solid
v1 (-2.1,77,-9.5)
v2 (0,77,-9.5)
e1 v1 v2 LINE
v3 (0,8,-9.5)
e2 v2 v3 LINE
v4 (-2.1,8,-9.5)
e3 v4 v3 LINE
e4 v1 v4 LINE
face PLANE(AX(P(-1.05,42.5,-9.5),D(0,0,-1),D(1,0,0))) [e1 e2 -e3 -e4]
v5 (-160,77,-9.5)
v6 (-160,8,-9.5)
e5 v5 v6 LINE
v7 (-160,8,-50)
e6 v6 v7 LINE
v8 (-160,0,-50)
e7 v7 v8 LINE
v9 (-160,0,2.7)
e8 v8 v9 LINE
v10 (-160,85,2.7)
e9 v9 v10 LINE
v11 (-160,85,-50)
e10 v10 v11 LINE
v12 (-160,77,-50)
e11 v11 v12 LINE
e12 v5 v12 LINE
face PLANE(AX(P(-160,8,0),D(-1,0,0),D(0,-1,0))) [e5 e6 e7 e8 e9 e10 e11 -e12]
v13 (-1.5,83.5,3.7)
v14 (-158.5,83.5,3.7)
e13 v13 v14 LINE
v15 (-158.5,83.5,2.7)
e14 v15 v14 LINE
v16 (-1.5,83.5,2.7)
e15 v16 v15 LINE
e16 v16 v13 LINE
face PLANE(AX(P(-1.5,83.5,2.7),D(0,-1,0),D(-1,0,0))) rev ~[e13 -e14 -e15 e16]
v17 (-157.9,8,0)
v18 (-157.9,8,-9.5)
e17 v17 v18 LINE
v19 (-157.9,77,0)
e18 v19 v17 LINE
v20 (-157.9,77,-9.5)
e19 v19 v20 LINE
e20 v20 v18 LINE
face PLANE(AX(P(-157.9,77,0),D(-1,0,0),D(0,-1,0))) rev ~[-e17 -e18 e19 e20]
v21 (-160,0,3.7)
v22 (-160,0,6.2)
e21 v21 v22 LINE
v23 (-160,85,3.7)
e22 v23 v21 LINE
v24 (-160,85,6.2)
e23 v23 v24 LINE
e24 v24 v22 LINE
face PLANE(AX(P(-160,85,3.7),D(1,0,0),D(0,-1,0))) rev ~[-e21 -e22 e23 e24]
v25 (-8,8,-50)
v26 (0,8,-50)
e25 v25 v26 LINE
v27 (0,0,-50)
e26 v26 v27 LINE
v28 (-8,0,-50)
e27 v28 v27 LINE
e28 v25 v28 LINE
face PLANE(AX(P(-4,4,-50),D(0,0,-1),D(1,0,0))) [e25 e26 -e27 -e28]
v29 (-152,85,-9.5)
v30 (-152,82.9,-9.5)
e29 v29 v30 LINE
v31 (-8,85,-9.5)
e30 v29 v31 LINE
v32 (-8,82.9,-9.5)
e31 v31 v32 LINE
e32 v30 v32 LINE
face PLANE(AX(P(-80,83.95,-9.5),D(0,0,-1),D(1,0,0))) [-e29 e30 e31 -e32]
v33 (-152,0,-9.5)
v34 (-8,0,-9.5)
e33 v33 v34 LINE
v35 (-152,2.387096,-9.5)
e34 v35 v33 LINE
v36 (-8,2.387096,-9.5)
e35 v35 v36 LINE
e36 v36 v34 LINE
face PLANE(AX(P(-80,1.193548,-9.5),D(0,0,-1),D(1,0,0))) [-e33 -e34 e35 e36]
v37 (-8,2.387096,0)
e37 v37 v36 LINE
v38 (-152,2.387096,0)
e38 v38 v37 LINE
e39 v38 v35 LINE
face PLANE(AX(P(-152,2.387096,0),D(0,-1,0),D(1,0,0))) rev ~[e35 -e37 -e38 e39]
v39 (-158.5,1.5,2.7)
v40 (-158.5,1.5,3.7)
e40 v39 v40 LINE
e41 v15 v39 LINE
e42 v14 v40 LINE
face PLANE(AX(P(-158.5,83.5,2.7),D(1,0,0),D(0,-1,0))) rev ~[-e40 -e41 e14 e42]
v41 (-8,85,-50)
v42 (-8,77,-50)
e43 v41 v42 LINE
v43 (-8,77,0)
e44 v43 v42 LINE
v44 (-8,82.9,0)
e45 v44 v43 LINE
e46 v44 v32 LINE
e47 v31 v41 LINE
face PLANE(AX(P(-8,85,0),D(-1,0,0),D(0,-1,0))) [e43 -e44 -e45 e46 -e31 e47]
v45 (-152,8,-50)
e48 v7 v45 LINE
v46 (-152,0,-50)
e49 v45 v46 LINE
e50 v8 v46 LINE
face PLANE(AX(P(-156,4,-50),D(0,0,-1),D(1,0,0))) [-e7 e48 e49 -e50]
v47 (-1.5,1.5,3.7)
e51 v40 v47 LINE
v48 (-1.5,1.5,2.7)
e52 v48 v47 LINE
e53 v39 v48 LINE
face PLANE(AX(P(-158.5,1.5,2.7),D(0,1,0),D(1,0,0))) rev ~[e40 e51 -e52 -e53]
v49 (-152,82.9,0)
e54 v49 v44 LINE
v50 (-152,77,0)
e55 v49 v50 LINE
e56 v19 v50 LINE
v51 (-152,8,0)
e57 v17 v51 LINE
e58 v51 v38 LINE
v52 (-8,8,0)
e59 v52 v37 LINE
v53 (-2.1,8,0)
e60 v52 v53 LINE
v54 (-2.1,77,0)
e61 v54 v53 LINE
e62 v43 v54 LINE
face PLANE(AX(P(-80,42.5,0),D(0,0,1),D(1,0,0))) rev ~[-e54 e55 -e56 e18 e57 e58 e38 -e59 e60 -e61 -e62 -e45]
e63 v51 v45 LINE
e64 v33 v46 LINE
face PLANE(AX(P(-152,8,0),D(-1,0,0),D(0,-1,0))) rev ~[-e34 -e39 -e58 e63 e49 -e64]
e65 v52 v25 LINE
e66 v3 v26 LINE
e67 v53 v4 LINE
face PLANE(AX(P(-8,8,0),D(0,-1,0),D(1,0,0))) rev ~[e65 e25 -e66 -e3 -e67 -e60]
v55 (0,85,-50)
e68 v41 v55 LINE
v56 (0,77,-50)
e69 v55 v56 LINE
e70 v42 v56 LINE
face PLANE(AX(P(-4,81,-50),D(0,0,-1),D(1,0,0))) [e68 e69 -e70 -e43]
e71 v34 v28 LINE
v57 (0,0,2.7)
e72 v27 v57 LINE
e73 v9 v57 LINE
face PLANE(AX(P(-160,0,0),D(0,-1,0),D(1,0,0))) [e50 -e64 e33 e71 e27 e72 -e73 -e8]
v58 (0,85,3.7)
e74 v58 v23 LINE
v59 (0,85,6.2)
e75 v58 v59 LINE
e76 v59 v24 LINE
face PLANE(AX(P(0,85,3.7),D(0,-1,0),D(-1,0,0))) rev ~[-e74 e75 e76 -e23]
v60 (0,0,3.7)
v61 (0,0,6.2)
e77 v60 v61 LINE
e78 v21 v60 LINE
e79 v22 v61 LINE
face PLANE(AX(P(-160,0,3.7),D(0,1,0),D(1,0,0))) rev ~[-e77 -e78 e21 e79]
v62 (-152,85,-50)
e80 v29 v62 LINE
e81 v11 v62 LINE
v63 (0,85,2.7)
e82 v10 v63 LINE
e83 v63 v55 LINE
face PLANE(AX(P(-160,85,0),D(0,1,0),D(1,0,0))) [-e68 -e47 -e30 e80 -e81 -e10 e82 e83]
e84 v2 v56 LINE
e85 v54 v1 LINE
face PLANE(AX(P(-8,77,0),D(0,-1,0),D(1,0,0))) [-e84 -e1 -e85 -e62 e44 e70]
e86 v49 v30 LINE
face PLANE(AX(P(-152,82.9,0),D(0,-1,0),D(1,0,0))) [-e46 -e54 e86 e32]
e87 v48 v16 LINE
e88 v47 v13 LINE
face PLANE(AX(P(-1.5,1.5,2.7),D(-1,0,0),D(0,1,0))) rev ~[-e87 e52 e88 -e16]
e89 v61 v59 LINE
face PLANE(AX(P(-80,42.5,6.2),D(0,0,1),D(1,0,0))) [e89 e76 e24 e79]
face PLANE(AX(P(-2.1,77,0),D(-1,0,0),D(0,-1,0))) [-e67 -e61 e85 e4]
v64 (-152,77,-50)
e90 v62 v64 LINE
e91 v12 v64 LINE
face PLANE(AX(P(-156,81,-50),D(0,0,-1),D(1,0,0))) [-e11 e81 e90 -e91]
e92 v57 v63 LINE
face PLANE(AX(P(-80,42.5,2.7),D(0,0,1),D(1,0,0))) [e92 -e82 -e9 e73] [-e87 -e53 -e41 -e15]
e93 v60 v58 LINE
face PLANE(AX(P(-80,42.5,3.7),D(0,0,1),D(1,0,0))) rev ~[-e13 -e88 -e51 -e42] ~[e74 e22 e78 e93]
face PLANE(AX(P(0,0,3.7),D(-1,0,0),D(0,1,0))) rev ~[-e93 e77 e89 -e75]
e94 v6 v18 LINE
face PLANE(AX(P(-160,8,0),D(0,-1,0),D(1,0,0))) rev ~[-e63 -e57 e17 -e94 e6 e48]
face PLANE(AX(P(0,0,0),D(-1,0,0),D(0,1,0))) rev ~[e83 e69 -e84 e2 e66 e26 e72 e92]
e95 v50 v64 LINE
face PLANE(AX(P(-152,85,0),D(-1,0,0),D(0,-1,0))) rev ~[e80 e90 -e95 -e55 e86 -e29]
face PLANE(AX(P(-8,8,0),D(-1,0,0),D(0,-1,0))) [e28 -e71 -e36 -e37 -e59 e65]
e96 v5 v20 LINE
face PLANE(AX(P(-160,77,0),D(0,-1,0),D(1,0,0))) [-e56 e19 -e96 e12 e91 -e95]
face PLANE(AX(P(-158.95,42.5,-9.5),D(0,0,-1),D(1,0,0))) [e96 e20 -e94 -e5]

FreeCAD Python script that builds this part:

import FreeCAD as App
import Part
import Sketcher

doc = App.newDocument("Part")
body = doc.addObject("PartDesign::Body", "Body")

# Sketch on XY plane
sketch1 = doc.addObject("Sketcher::SketchObject", "Sketch")
body.addObject(sketch1)
sketch1.AttachmentSupport = (doc.XY_Plane, [""])
sketch1.MapMode = "FlatFace"
sketch1.addGeometry(Part.LineSegment(App.Vector(-160, 85, 0), App.Vector(-160, 0, 0)), False)
sketch1.addGeometry(Part.LineSegment(App.Vector(-160, 0, 0), App.Vector(0, 0, 0)), False)
sketch1.addGeometry(Part.LineSegment(App.Vector(0, 0, 0), App.Vector(0, 85, 0)), False)
sketch1.addGeometry(Part.LineSegment(App.Vector(0, 85, 0), App.Vector(-160, 85, 0)), False)
sketch1.addConstraint(Sketcher.Constraint("Coincident", 0, 2, 1, 1))
sketch1.addConstraint(Sketcher.Constraint("Coincident", 1, 2, 2, 1))
sketch1.addConstraint(Sketcher.Constraint("Coincident", 2, 2, 3, 1))
sketch1.addConstraint(Sketcher.Constraint("Coincident", 3, 2, 0, 1))
sketch1.addConstraint(Sketcher.Constraint("Vertical", 0))
sketch1.addConstraint(Sketcher.Constraint("Horizontal", 1))
sketch1.addConstraint(Sketcher.Constraint("Vertical", 2))
sketch1.addConstraint(Sketcher.Constraint("Horizontal", 3))
sketch1.addConstraint(Sketcher.Constraint("Coincident", 1, 2, -1, 1))
sketch1.addConstraint(Sketcher.Constraint("DistanceX", 1, 1, 1, 2, 160.0))
sketch1.addConstraint(Sketcher.Constraint("DistanceY", 0, 2, 0, 1, 85.0))
pad1 = doc.addObject("PartDesign::Pad", "Pad")
body.addObject(pad1)
pad1.Profile = sketch1
pad1.Length = 2.7

# Sketch on XY plane
sketch2 = doc.addObject("Sketcher::SketchObject", "Sketch001")
body.addObject(sketch2)
sketch2.AttachmentSupport = (doc.XY_Plane, [""])
sketch2.MapMode = "FlatFace"
sketch2.AttachmentOffset = App.Placement(App.Vector(0, 0, 2.7), App.Rotation())
sketch2.addGeometry(Part.LineSegment(App.Vector(-2, 84, 0), App.Vector(-158, 84, 0)), False)
sketch2.addGeometry(Part.LineSegment(App.Vector(-158, 84, 0), App.Vector(-158, 2, 0)), False)
sketch2.addGeometry(Part.LineSegment(App.Vector(-158, 2, 0), App.Vector(-2, 2, 0)), False)
sketch2.addGeometry(Part.LineSegment(App.Vector(-2, 2, 0), App.Vector(-2, 84, 0)), False)
sketch2.addConstraint(Sketcher.Constraint("Coincident", 0, 2, 1, 1))
sketch2.addConstraint(Sketcher.Constraint("Coincident", 1, 2, 2, 1))
sketch2.addConstraint(Sketcher.Constraint("Coincident", 2, 2, 3, 1))
sketch2.addConstraint(Sketcher.Constraint("Coincident", 3, 2, 0, 1))
sketch2.addConstraint(Sketcher.Constraint("Horizontal", 0))
sketch2.addConstraint(Sketcher.Constraint("Vertical", 1))
sketch2.addConstraint(Sketcher.Constraint("Horizontal", 2))
sketch2.addConstraint(Sketcher.Constraint("Vertical", 3))
sketch2.addConstraint(Sketcher.Constraint("DistanceX", 0, 2, 0, 1, 157.0))
sketch2.addConstraint(Sketcher.Constraint("DistanceY", 1, 2, 1, 1, 82.0))
sketch2.addConstraint(Sketcher.Constraint("DistanceX", 0, 2, -1, 1, 158.5))
sketch2.addConstraint(Sketcher.Constraint("DistanceY", -1, 1, 0, 2, 83.5))
pad2 = doc.addObject("PartDesign::Pad", "Pad001")
body.addObject(pad2)
pad2.Profile = sketch2
pad2.Length = 1

# Sketch on XY plane
sketch3 = doc.addObject("Sketcher::SketchObject", "Sketch002")
body.addObject(sketch3)
sketch3.AttachmentSupport = (doc.XY_Plane, [""])
sketch3.MapMode = "FlatFace"
sketch3.addGeometry(Part.LineSegment(App.Vector(-160, 0, 0), App.Vector(-160, 8, 0)), False)
sketch3.addGeometry(Part.LineSegment(App.Vector(-160, 8, 0), App.Vector(-152, 8, 0)), False)
sketch3.addGeometry(Part.LineSegment(App.Vector(-152, 8, 0), App.Vector(-152, 0, 0)), False)
sketch3.addGeometry(Part.LineSegment(App.Vector(-152, 0, 0), App.Vector(-160, 0, 0)), False)
sketch3.addConstraint(Sketcher.Constraint("Coincident", 0, 2, 1, 1))
sketch3.addConstraint(Sketcher.Constraint("Coincident", 1, 2, 2, 1))
sketch3.addConstraint(Sketcher.Constraint("Coincident", 2, 2, 3, 1))
sketch3.addConstraint(Sketcher.Constraint("Coincident", 3, 2, 0, 1))
sketch3.addConstraint(Sketcher.Constraint("Vertical", 0))
sketch3.addConstraint(Sketcher.Constraint("Horizontal", 1))
sketch3.addConstraint(Sketcher.Constraint("Vertical", 2))
sketch3.addConstraint(Sketcher.Constraint("Horizontal", 3))
sketch3.addConstraint(Sketcher.Constraint("PointOnObject", 2, 2, -1))
sketch3.addConstraint(Sketcher.Constraint("Equal", 3, 0))
sketch3.addConstraint(Sketcher.Constraint("DistanceX", 1, 1, 1, 2, 8.0))
sketch3.addConstraint(Sketcher.Constraint("DistanceX", 0, 2, -1, 1, 160.0))
pad3 = doc.addObject("PartDesign::Pad", "Pad002")
body.addObject(pad3)
pad3.Profile = sketch3
pad3.Length = 50
pad3.Reversed = True

# Sketch on XY plane
sketch4 = doc.addObject("Sketcher::SketchObject", "Sketch003")
body.addObject(sketch4)
sketch4.AttachmentSupport = (doc.XY_Plane, [""])
sketch4.MapMode = "FlatFace"
sketch4.addGeometry(Part.LineSegment(App.Vector(-160, 0, 0), App.Vector(-160, 8, 0)), False)
sketch4.addGeometry(Part.LineSegment(App.Vector(-160, 8, 0), App.Vector(-152, 8, 0)), False)
sketch4.addGeometry(Part.LineSegment(App.Vector(-152, 8, 0), App.Vector(-152, 0, 0)), False)
sketch4.addGeometry(Part.LineSegment(App.Vector(-152, 0, 0), App.Vector(-160, 0, 0)), False)
sketch4.addGeometry(Part.LineSegment(App.Vector(-160, 77, 0), App.Vector(-160, 85, 0)), False)
sketch4.addGeometry(Part.LineSegment(App.Vector(-160, 85, 0), App.Vector(-152, 85, 0)), False)
sketch4.addGeometry(Part.LineSegment(App.Vector(-152, 85, 0), App.Vector(-152, 77, 0)), False)
sketch4.addGeometry(Part.LineSegment(App.Vector(-152, 77, 0), App.Vector(-160, 77, 0)), False)
sketch4.addGeometry(Part.LineSegment(App.Vector(-8, 77, 0), App.Vector(-8, 85, 0)), False)
sketch4.addGeometry(Part.LineSegment(App.Vector(-8, 85, 0), App.Vector(0, 85, 0)), False)
sketch4.addGeometry(Part.LineSegment(App.Vector(0, 85, 0), App.Vector(0, 77, 0)), False)
sketch4.addGeometry(Part.LineSegment(App.Vector(0, 77, 0), App.Vector(-8, 77, 0)), False)
sketch4.addGeometry(Part.LineSegment(App.Vector(-8, 0, 0), App.Vector(-8, 8, 0)), False)
sketch4.addGeometry(Part.LineSegment(App.Vector(-8, 8, 0), App.Vector(0, 8, 0)), False)
sketch4.addGeometry(Part.LineSegment(App.Vector(0, 8, 0), App.Vector(0, 0, 0)), False)
sketch4.addGeometry(Part.LineSegment(App.Vector(0, 0, 0), App.Vector(-8, 0, 0)), False)
sketch4.addConstraint(Sketcher.Constraint("Coincident", 0, 2, 1, 1))
sketch4.addConstraint(Sketcher.Constraint("Coincident", 1, 2, 2, 1))
sketch4.addConstraint(Sketcher.Constraint("Coincident", 2, 2, 3, 1))
sketch4.addConstraint(Sketcher.Constraint("Coincident", 3, 2, 0, 1))
sketch4.addConstraint(Sketcher.Constraint("Coincident", 4, 2, 5, 1))
sketch4.addConstraint(Sketcher.Constraint("Coincident", 5, 2, 6, 1))
sketch4.addConstraint(Sketcher.Constraint("Coincident", 6, 2, 7, 1))
sketch4.addConstraint(Sketcher.Constraint("Coincident", 7, 2, 4, 1))
sketch4.addConstraint(Sketcher.Constraint("Coincident", 8, 2, 9, 1))
sketch4.addConstraint(Sketcher.Constraint("Coincident", 9, 2, 10, 1))
sketch4.addConstraint(Sketcher.Constraint("Coincident", 10, 2, 11, 1))
sketch4.addConstraint(Sketcher.Constraint("Coincident", 11, 2, 8, 1))
sketch4.addConstraint(Sketcher.Constraint("Coincident", 12, 2, 13, 1))
sketch4.addConstraint(Sketcher.Constraint("Coincident", 13, 2, 14, 1))
sketch4.addConstraint(Sketcher.Constraint("Coincident", 14, 2, 15, 1))
sketch4.addConstraint(Sketcher.Constraint("Coincident", 15, 2, 12, 1))
sketch4.addConstraint(Sketcher.Constraint("Vertical", 0))
sketch4.addConstraint(Sketcher.Constraint("Horizontal", 1))
sketch4.addConstraint(Sketcher.Constraint("Vertical", 2))
sketch4.addConstraint(Sketcher.Constraint("Horizontal", 3))
sketch4.addConstraint(Sketcher.Constraint("Vertical", 4))
sketch4.addConstraint(Sketcher.Constraint("Horizontal", 5))
sketch4.addConstraint(Sketcher.Constraint("Vertical", 6))
sketch4.addConstraint(Sketcher.Constraint("Horizontal", 7))
sketch4.addConstraint(Sketcher.Constraint("Vertical", 8))
sketch4.addConstraint(Sketcher.Constraint("Horizontal", 9))
sketch4.addConstraint(Sketcher.Constraint("Vertical", 10))
sketch4.addConstraint(Sketcher.Constraint("Horizontal", 11))
sketch4.addConstraint(Sketcher.Constraint("Vertical", 12))
sketch4.addConstraint(Sketcher.Constraint("Horizontal", 13))
sketch4.addConstraint(Sketcher.Constraint("Vertical", 14))
sketch4.addConstraint(Sketcher.Constraint("Horizontal", 15))
sketch4.addConstraint(Sketcher.Constraint("Coincident", 14, 2, -1, 1))
sketch4.addConstraint(Sketcher.Constraint("PointOnObject", 2, 2, -1))
sketch4.addConstraint(Sketcher.Constraint("PointOnObject", 9, 2, -2))
sketch4.addConstraint(Sketcher.Constraint("Horizontal", 5, 2, 8, 2))
sketch4.addConstraint(Sketcher.Constraint("Horizontal", 7, 2, 10, 2))
sketch4.addConstraint(Sketcher.Constraint("Horizontal", 1, 2, 12, 2))
sketch4.addConstraint(Sketcher.Constraint("Vertical", 3, 2, 4, 2))
sketch4.addConstraint(Sketcher.Constraint("Vertical", 2, 2, 5, 2))
sketch4.addConstraint(Sketcher.Constraint("Vertical", 11, 2, 12, 2))
sketch4.addConstraint(Sketcher.Constraint("Equal", 7, 9))
sketch4.addConstraint(Sketcher.Constraint("Equal", 15, 0))
sketch4.addConstraint(Sketcher.Constraint("Equal", 2, 4))
sketch4.addConstraint(Sketcher.Constraint("DistanceX", 1, 1, 1, 2, 8.0))
sketch4.addConstraint(Sketcher.Constraint("DistanceX", 0, 2, -1, 1, 160.0))
sketch4.addConstraint(Sketcher.Constraint("DistanceY", -1, 1, 4, 2, 85.0))
pad4 = doc.addObject("PartDesign::Pad", "Pad003")
body.addObject(pad4)
pad4.Profile = sketch4
pad4.Length = 50
pad4.Reversed = True

# Sketch on XY plane
sketch5 = doc.addObject("Sketcher::SketchObject", "Sketch004")
body.addObject(sketch5)
sketch5.AttachmentSupport = (doc.XY_Plane, [""])
sketch5.MapMode = "FlatFace"
sketch5.AttachmentOffset = App.Placement(App.Vector(0, 0, 3.7), App.Rotation())
sketch5.addGeometry(Part.LineSegment(App.Vector(-160, 0, 0), App.Vector(0, 0, 0)), False)
sketch5.addGeometry(Part.LineSegment(App.Vector(0, 0, 0), App.Vector(0, 85, 0)), False)
sketch5.addGeometry(Part.LineSegment(App.Vector(0, 85, 0), App.Vector(-160, 85, 0)), False)
sketch5.addGeometry(Part.LineSegment(App.Vector(-160, 85, 0), App.Vector(-160, 0, 0)), False)
sketch5.addConstraint(Sketcher.Constraint("Coincident", 0, 2, 1, 1))
sketch5.addConstraint(Sketcher.Constraint("Coincident", 1, 2, 2, 1))
sketch5.addConstraint(Sketcher.Constraint("Coincident", 2, 2, 3, 1))
sketch5.addConstraint(Sketcher.Constraint("Coincident", 3, 2, 0, 1))
sketch5.addConstraint(Sketcher.Constraint("Horizontal", 0))
sketch5.addConstraint(Sketcher.Constraint("Vertical", 1))
sketch5.addConstraint(Sketcher.Constraint("Horizontal", 2))
sketch5.addConstraint(Sketcher.Constraint("Vertical", 3))
sketch5.addConstraint(Sketcher.Constraint("Coincident", 0, 2, -1, 1))
sketch5.addConstraint(Sketcher.Constraint("DistanceX", 0, 1, 0, 2, 160.0))
sketch5.addConstraint(Sketcher.Constraint("DistanceY", 1, 1, 1, 2, 85.0))
pad5 = doc.addObject("PartDesign::Pad", "Pad004")
body.addObject(pad5)
pad5.Profile = sketch5
pad5.Length = 2.5

# Sketch on XY plane
sketch6 = doc.addObject("Sketcher::SketchObject", "Sketch005")
body.addObject(sketch6)
sketch6.AttachmentSupport = (doc.XY_Plane, [""])
sketch6.MapMode = "FlatFace"
sketch6.addGeometry(Part.LineSegment(App.Vector(-152, 0, 0), App.Vector(-152, 2.4, 0)), False)
sketch6.addGeometry(Part.LineSegment(App.Vector(-152, 2.4, 0), App.Vector(-8, 2.4, 0)), False)
sketch6.addGeometry(Part.LineSegment(App.Vector(-8, 2.4, 0), App.Vector(-8, 0, 0)), False)
sketch6.addGeometry(Part.LineSegment(App.Vector(-8, 0, 0), App.Vector(-152, 0, 0)), False)
sketch6.addGeometry(Part.LineSegment(App.Vector(-160, 8, 0), App.Vector(-160, 77, 0)), False)
sketch6.addGeometry(Part.LineSegment(App.Vector(-160, 77, 0), App.Vector(-157.9, 77, 0)), False)
sketch6.addGeometry(Part.LineSegment(App.Vector(-157.9, 77, 0), App.Vector(-157.9, 8, 0)), False)
sketch6.addGeometry(Part.LineSegment(App.Vector(-157.9, 8, 0), App.Vector(-160, 8, 0)), False)
sketch6.addGeometry(Part.LineSegment(App.Vector(-2.1, 8, 0), App.Vector(-2.1, 77, 0)), False)
sketch6.addGeometry(Part.LineSegment(App.Vector(-2.1, 77, 0), App.Vector(0, 77, 0)), False)
sketch6.addGeometry(Part.LineSegment(App.Vector(0, 77, 0), App.Vector(0, 8, 0)), False)
sketch6.addGeometry(Part.LineSegment(App.Vector(0, 8, 0), App.Vector(-2.1, 8, 0)), False)
sketch6.addGeometry(Part.LineSegment(App.Vector(-152, 82.9, 0), App.Vector(-152, 85, 0)), False)
sketch6.addGeometry(Part.LineSegment(App.Vector(-152, 85, 0), App.Vector(-8, 85, 0)), False)
sketch6.addGeometry(Part.LineSegment(App.Vector(-8, 85, 0), App.Vector(-8, 82.9, 0)), False)
sketch6.addGeometry(Part.LineSegment(App.Vector(-8, 82.9, 0), App.Vector(-152, 82.9, 0)), False)
sketch6.addConstraint(Sketcher.Constraint("Coincident", 0, 2, 1, 1))
sketch6.addConstraint(Sketcher.Constraint("Coincident", 1, 2, 2, 1))
sketch6.addConstraint(Sketcher.Constraint("Coincident", 2, 2, 3, 1))
sketch6.addConstraint(Sketcher.Constraint("Coincident", 3, 2, 0, 1))
sketch6.addConstraint(Sketcher.Constraint("Coincident", 4, 2, 5, 1))
sketch6.addConstraint(Sketcher.Constraint("Coincident", 5, 2, 6, 1))
sketch6.addConstraint(Sketcher.Constraint("Coincident", 6, 2, 7, 1))
sketch6.addConstraint(Sketcher.Constraint("Coincident", 7, 2, 4, 1))
sketch6.addConstraint(Sketcher.Constraint("Coincident", 8, 2, 9, 1))
sketch6.addConstraint(Sketcher.Constraint("Coincident", 9, 2, 10, 1))
sketch6.addConstraint(Sketcher.Constraint("Coincident", 10, 2, 11, 1))
sketch6.addConstraint(Sketcher.Constraint("Coincident", 11, 2, 8, 1))
sketch6.addConstraint(Sketcher.Constraint("Coincident", 12, 2, 13, 1))
sketch6.addConstraint(Sketcher.Constraint("Coincident", 13, 2, 14, 1))
sketch6.addConstraint(Sketcher.Constraint("Coincident", 14, 2, 15, 1))
sketch6.addConstraint(Sketcher.Constraint("Coincident", 15, 2, 12, 1))
sketch6.addConstraint(Sketcher.Constraint("Vertical", 0))
sketch6.addConstraint(Sketcher.Constraint("Horizontal", 1))
sketch6.addConstraint(Sketcher.Constraint("Vertical", 2))
sketch6.addConstraint(Sketcher.Constraint("Horizontal", 3))
sketch6.addConstraint(Sketcher.Constraint("Vertical", 4))
sketch6.addConstraint(Sketcher.Constraint("Horizontal", 5))
sketch6.addConstraint(Sketcher.Constraint("Vertical", 6))
sketch6.addConstraint(Sketcher.Constraint("Horizontal", 7))
sketch6.addConstraint(Sketcher.Constraint("Vertical", 8))
sketch6.addConstraint(Sketcher.Constraint("Horizontal", 9))
sketch6.addConstraint(Sketcher.Constraint("Vertical", 10))
sketch6.addConstraint(Sketcher.Constraint("Horizontal", 11))
sketch6.addConstraint(Sketcher.Constraint("Vertical", 12))
sketch6.addConstraint(Sketcher.Constraint("Horizontal", 13))
sketch6.addConstraint(Sketcher.Constraint("Vertical", 14))
sketch6.addConstraint(Sketcher.Constraint("Horizontal", 15))
sketch6.addConstraint(Sketcher.Constraint("PointOnObject", 2, 2, -1))
sketch6.addConstraint(Sketcher.Constraint("PointOnObject", 9, 2, -2))
sketch6.addConstraint(Sketcher.Constraint("Horizontal", 5, 2, 8, 2))
sketch6.addConstraint(Sketcher.Constraint("Horizontal", 7, 2, 10, 2))
sketch6.addConstraint(Sketcher.Constraint("Vertical", 3, 2, 12, 2))
sketch6.addConstraint(Sketcher.Constraint("Vertical", 2, 2, 13, 2))
sketch6.addConstraint(Sketcher.Constraint("Equal", 7, 9))
sketch6.addConstraint(Sketcher.Constraint("Equal", 11, 12))
sketch6.addConstraint(Sketcher.Constraint("DistanceX", 1, 1, 1, 2, 144.0))
sketch6.addConstraint(Sketcher.Constraint("DistanceY", 4, 1, 4, 2, 69.0))
sketch6.addConstraint(Sketcher.Constraint("DistanceX", 5, 1, 5, 2, 2.1))
sketch6.addConstraint(Sketcher.Constraint("DistanceX", 0, 2, -1, 1, 152.0))
sketch6.addConstraint(Sketcher.Constraint("DistanceX", 4, 2, -1, 1, 160.0))
sketch6.addConstraint(Sketcher.Constraint("DistanceY", -1, 1, 4, 2, 77.0))
sketch6.addConstraint(Sketcher.Constraint("DistanceY", -1, 1, 12, 2, 85.0))
sketch6.addConstraint(Sketcher.Constraint("DistanceY", 0, 1, 0, 2, 2.387096))
pad6 = doc.addObject("PartDesign::Pad", "Pad005")
body.addObject(pad6)
pad6.Profile = sketch6
pad6.Length = 9.5
pad6.Reversed = True

doc.recompute()
